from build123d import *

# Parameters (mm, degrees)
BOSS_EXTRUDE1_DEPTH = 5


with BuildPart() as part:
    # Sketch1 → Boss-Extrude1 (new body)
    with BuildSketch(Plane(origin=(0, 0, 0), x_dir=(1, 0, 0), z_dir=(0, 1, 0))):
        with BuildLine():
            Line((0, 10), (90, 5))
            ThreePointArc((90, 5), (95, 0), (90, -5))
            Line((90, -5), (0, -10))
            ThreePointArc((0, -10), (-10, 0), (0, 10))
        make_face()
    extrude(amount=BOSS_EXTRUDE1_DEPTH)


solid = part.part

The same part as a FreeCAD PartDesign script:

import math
import FreeCAD as App
import Part
import Sketcher

V = App.Vector

doc = App.newDocument("Part")
params = doc.addObject("Spreadsheet::Sheet", "Params")
for row, (alias, value) in enumerate([
    ("sketch1_radius", "10 mm"),
    ("sketch1_radius2", "5 mm"),
    ("pad1_length", "5 mm"),
], start=1):
    params.set(f"A{row}", alias)
    params.set(f"B{row}", "=" + value)
    params.setAlias(f"B{row}", alias)

body = doc.addObject("PartDesign::Body", "Body")

# Sketch on XZ plane
sketch1 = body.newObject("Sketcher::SketchObject", "Sketch")
sketch1.AttachmentSupport = (doc.getObject("XZ_Plane"), [""])
sketch1.MapMode = "FlatFace"
sketch1.addGeometry([
    Part.LineSegment(V(90, -5, 0), V(0, -10, 0)),
    Part.ArcOfCircle(Part.Circle(V(0, 0, 0), V(0, 0, 1), 10), math.radians(90), math.radians(270)),
    Part.LineSegment(V(0, 10, 0), V(90, 5, 0)),
    Part.ArcOfCircle(Part.Circle(V(90, 0, 0), V(0, 0, 1), 5), math.radians(-90), math.radians(90)),
], False)
sketch1.addConstraint([
    Sketcher.Constraint("Coincident", 0, 2, 1, 2),
    Sketcher.Constraint("Coincident", 1, 1, 2, 1),
    Sketcher.Constraint("Coincident", 2, 2, 3, 2),
    Sketcher.Constraint("Coincident", 3, 1, 0, 1),
    Sketcher.Constraint("Coincident", 1, 3, -1, 1),
    Sketcher.Constraint("Symmetric", 2, 2, 3, 1, -1),
    Sketcher.Constraint("PointOnObject", 0, 2, -2),
    Sketcher.Constraint("PointOnObject", 1, 1, -2),
    Sketcher.Constraint("Vertical", 3, 3, 2, 2),
    Sketcher.Constraint("Radius", 1, 10.0),
    Sketcher.Constraint("Radius", 3, 5.0),
    Sketcher.Constraint("DistanceX", -1, 1, 3, 3, 90.0),
])
sketch1.setExpression("Constraints[9]", "Params.sketch1_radius")
sketch1.setExpression("Constraints[10]", "Params.sketch1_radius2")
pad1 = body.newObject("PartDesign::Pad", "Pad")
pad1.Profile = sketch1
pad1.setExpression("Length", "Params.pad1_length")
pad1.Reversed = True

doc.recompute()
